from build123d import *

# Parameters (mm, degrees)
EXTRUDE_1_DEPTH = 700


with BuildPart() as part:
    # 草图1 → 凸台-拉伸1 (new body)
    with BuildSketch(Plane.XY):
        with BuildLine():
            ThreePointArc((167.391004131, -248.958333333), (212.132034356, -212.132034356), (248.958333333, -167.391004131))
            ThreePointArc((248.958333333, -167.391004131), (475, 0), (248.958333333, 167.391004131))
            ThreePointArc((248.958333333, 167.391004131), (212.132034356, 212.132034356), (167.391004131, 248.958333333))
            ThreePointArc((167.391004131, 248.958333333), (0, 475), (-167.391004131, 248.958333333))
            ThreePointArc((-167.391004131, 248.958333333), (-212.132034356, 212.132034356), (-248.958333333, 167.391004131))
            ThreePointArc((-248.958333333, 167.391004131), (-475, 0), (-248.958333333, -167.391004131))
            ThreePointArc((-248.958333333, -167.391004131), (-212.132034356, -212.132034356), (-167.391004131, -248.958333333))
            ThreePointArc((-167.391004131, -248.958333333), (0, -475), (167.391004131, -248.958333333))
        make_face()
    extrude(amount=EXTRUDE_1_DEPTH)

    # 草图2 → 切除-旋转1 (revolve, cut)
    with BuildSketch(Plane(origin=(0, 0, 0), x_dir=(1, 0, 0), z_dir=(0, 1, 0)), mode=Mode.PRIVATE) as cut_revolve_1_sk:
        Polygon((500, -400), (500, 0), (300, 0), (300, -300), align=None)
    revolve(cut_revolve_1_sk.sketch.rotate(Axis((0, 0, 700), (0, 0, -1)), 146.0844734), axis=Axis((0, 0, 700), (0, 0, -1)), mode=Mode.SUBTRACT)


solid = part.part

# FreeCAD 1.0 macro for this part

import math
import FreeCAD as App
import Part
import Sketcher
from FreeCAD import Vector
Q = App.Units.Quantity

doc = App.newDocument("Part")
body = doc.addObject("PartDesign::Body", "Body")

sketch1 = body.newObject("Sketcher::SketchObject", "Sketch")
sketch1.AttachmentSupport = (doc.getObject("XY_Plane"), [""])
sketch1.MapMode = "FlatFace"
sketch1.addGeometry([
    Part.ArcOfCircle(Part.Circle(Vector(0, 0, 0), Vector(0, 0, 1), 300), math.radians(-56.084473), math.radians(-33.915527)),
    Part.ArcOfCircle(Part.Circle(Vector(300, 0, 0), Vector(0, 0, 1), 175), math.radians(-106.957763), math.radians(106.957763)),
    Part.ArcOfCircle(Part.Circle(Vector(0, 0, 0), Vector(0, 0, 1), 300), math.radians(33.915527), math.radians(56.084473)),
    Part.ArcOfCircle(Part.Circle(Vector(0, 300, 0), Vector(0, 0, 1), 175), math.radians(-16.957763), math.radians(196.957763)),
    Part.ArcOfCircle(Part.Circle(Vector(0, 0, 0), Vector(0, 0, 1), 300), math.radians(123.915527), math.radians(146.084473)),
    Part.ArcOfCircle(Part.Circle(Vector(-300, 0, 0), Vector(0, 0, 1), 175), math.radians(73.042237), math.radians(286.957763)),
    Part.ArcOfCircle(Part.Circle(Vector(0, 0, 0), Vector(0, 0, 1), 300), math.radians(-146.084473), math.radians(-123.915527)),
    Part.ArcOfCircle(Part.Circle(Vector(0, -300, 0), Vector(0, 0, 1), 175), math.radians(163.042237), math.radians(376.957763)),
], False)
sketch1.addConstraint([
    Sketcher.Constraint("Coincident", 0, 2, 1, 1),
    Sketcher.Constraint("Coincident", 1, 2, 2, 1),
    Sketcher.Constraint("Coincident", 2, 2, 3, 1),
    Sketcher.Constraint("Coincident", 3, 2, 4, 1),
    Sketcher.Constraint("Coincident", 4, 2, 5, 1),
    Sketcher.Constraint("Coincident", 5, 2, 6, 1),
    Sketcher.Constraint("Coincident", 6, 2, 7, 1),
    Sketcher.Constraint("Coincident", 7, 2, 0, 1),
    Sketcher.Constraint("Coincident", 0, 3, -1, 1),
    Sketcher.Constraint("Coincident", 2, 3, -1, 1),
    Sketcher.Constraint("Coincident", 4, 3, -1, 1),
    Sketcher.Constraint("Coincident", 6, 3, -1, 1),
    Sketcher.Constraint("Equal", 0, 2),
    Sketcher.Constraint("Equal", 1, 3),
    Sketcher.Constraint("Equal", 2, 4),
    Sketcher.Constraint("Equal", 3, 5),
    Sketcher.Constraint("Equal", 4, 6),
    Sketcher.Constraint("Equal", 5, 7),
    Sketcher.Constraint("Symmetric", 1, 3, 5, 3, -1, 1),
    Sketcher.Constraint("Symmetric", 3, 3, 7, 3, -1, 1),
    Sketcher.Constraint("PointOnObject", 1, 3, -1),
    Sketcher.Constraint("PointOnObject", 3, 3, -2),
    Sketcher.Constraint("Radius", 0, Q("300 mm")),
    Sketcher.Constraint("Radius", 1, Q("175 mm")),
    Sketcher.Constraint("DistanceX", -1, 1, 1, 3, Q("300 mm")),
    Sketcher.Constraint("DistanceY", -1, 1, 3, 3, Q("300 mm")),
])
pad1 = body.newObject("PartDesign::Pad", "Pad")
pad1.Profile = sketch1
pad1.Length = 700

sketch2 = body.newObject("Sketcher::SketchObject", "Sketch001")
sketch2.AttachmentSupport = (doc.getObject("XZ_Plane"), [""])
sketch2.MapMode = "FlatFace"
sketch2.addGeometry([
    Part.LineSegment(Vector(500, 400, 0), Vector(500, 0, 0)),
    Part.LineSegment(Vector(500, 0, 0), Vector(300, 0, 0)),
    Part.LineSegment(Vector(300, 0, 0), Vector(300, 300, 0)),
    Part.LineSegment(Vector(300, 300, 0), Vector(500, 400, 0)),
], False)
sketch2.addConstraint([
    Sketcher.Constraint("Coincident", 0, 2, 1, 1),
    Sketcher.Constraint("Coincident", 1, 2, 2, 1),
    Sketcher.Constraint("Coincident", 2, 2, 3, 1),
    Sketcher.Constraint("Coincident", 3, 2, 0, 1),
    Sketcher.Constraint("Vertical", 0),
    Sketcher.Constraint("Horizontal", 1),
    Sketcher.Constraint("Vertical", 2),
    Sketcher.Constraint("PointOnObject", 0, 2, -1),
    Sketcher.Constraint("DistanceX", 1, 2, 1, 1, Q("200 mm")),
    Sketcher.Constraint("DistanceY", 0, 2, 0, 1, Q("400 mm")),
    Sketcher.Constraint("DistanceY", 2, 1, 2, 2, Q("300 mm")),
    Sketcher.Constraint("DistanceX", -1, 1, 0, 2, Q("500 mm")),
])
groove = body.newObject("PartDesign::Groove", "Groove")
groove.Profile = sketch2
groove.ReferenceAxis = (sketch2, ["V_Axis"])
groove.Angle = 360

doc.recompute()
